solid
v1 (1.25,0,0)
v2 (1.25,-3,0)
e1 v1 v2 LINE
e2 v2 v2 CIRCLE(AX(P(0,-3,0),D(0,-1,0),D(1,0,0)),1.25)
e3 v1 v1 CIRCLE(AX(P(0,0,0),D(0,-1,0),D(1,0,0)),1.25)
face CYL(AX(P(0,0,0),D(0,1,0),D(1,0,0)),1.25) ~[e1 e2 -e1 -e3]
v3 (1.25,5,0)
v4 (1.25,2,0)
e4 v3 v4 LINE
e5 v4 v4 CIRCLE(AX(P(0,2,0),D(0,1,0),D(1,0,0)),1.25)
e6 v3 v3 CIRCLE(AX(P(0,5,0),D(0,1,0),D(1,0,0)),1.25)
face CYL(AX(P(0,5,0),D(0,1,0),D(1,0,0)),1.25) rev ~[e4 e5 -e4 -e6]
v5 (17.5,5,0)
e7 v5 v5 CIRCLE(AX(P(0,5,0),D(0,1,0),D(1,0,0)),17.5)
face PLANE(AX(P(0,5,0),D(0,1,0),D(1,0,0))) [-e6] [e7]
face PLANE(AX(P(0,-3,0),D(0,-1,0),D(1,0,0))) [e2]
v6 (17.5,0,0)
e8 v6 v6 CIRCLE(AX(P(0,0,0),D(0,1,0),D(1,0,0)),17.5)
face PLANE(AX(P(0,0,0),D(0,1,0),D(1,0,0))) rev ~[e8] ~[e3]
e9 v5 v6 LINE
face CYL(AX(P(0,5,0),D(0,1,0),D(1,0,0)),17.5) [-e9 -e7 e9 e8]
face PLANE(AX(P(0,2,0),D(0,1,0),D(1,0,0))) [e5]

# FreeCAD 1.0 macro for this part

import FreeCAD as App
import Part
import Sketcher

V = App.Vector

doc = App.newDocument("Part")
params = doc.addObject("Spreadsheet::Sheet", "Params")
for row, (alias, value) in enumerate([
    ("sketch1_diameter", "25 mm"),
    ("pad1_length", "5 mm"),
    ("sketch2_diameter", "2.5 mm"),
    ("pocket1_length", "3 mm"),
    ("sketch3_diameter", "2.5 mm"),
    ("pad2_length", "3 mm"),
    ("sketch4_diameter", "35 mm"),
    ("sketch4_diameter2", "25 mm"),
    ("pad3_length", "5 mm"),
], start=1):
    params.set(f"A{row}", alias)
    params.set(f"B{row}", "=" + value)
    params.setAlias(f"B{row}", alias)

body = doc.addObject("PartDesign::Body", "Body")

sketch1 = body.newObject("Sketcher::SketchObject", "Sketch")
sketch1.AttachmentSupport = (doc.getObject("XZ_Plane"), [""])
sketch1.MapMode = "FlatFace"
sketch1.addGeometry(Part.Circle(V(0, 0, 0), V(0, 0, 1), 12.5), False)
sketch1.addConstraint(Sketcher.Constraint("Coincident", 0, 3, -1, 1))
sketch1.addConstraint(Sketcher.Constraint("Diameter", 0, 25.0))
sketch1.setExpression("Constraints[1]", "Params.sketch1_diameter")
pad1 = body.newObject("PartDesign::Pad", "Pad")
pad1.Profile = sketch1
pad1.setExpression("Length", "Params.pad1_length")
pad1.Reversed = True

sketch2 = body.newObject("Sketcher::SketchObject", "Sketch001")
sketch2.AttachmentSupport = (doc.getObject("XZ_Plane"), [""])
sketch2.MapMode = "FlatFace"
sketch2.AttachmentOffset = App.Placement(V(0, 0, -5), App.Rotation())
sketch2.addGeometry(Part.Circle(V(0, 0, 0), V(0, 0, 1), 1.25), False)
sketch2.addConstraint(Sketcher.Constraint("Coincident", 0, 3, -1, 1))
sketch2.addConstraint(Sketcher.Constraint("Diameter", 0, 2.5))
sketch2.setExpression("Constraints[1]", "Params.sketch2_diameter")
pocket1 = body.newObject("PartDesign::Pocket", "Pocket")
pocket1.Profile = sketch2
pocket1.setExpression("Length", "Params.pocket1_length")
pocket1.Reversed = True

sketch3 = body.newObject("Sketcher::SketchObject", "Sketch002")
sketch3.AttachmentSupport = (doc.getObject("XZ_Plane"), [""])
sketch3.MapMode = "FlatFace"
sketch3.addGeometry(Part.Circle(V(0, 0, 0), V(0, 0, 1), 1.25), False)
sketch3.addConstraint(Sketcher.Constraint("Coincident", 0, 3, -1, 1))
sketch3.addConstraint(Sketcher.Constraint("Diameter", 0, 2.5))
sketch3.setExpression("Constraints[1]", "Params.sketch3_diameter")
pad2 = body.newObject("PartDesign::Pad", "Pad001")
pad2.Profile = sketch3
pad2.setExpression("Length", "Params.pad2_length")

sketch4 = body.newObject("Sketcher::SketchObject", "Sketch003")
sketch4.AttachmentSupport = (doc.getObject("XZ_Plane"), [""])
sketch4.MapMode = "FlatFace"
sketch4.AttachmentOffset = App.Placement(V(0, 0, -5), App.Rotation())
sketch4.addGeometry(Part.Circle(V(0, 0, 0), V(0, 0, 1), 17.5), False)
sketch4.addGeometry(Part.Circle(V(0, 0, 0), V(0, 0, 1), 12.5), False)
sketch4.addConstraint(Sketcher.Constraint("Coincident", 0, 3, -1, 1))
sketch4.addConstraint(Sketcher.Constraint("Coincident", 1, 3, -1, 1))
sketch4.addConstraint(Sketcher.Constraint("Diameter", 0, 35.0))
sketch4.addConstraint(Sketcher.Constraint("Diameter", 1, 25.0))
sketch4.setExpression("Constraints[2]", "Params.sketch4_diameter")
sketch4.setExpression("Constraints[3]", "Params.sketch4_diameter2")
pad3 = body.newObject("PartDesign::Pad", "Pad002")
pad3.Profile = sketch4
pad3.setExpression("Length", "Params.pad3_length")

doc.recompute()
